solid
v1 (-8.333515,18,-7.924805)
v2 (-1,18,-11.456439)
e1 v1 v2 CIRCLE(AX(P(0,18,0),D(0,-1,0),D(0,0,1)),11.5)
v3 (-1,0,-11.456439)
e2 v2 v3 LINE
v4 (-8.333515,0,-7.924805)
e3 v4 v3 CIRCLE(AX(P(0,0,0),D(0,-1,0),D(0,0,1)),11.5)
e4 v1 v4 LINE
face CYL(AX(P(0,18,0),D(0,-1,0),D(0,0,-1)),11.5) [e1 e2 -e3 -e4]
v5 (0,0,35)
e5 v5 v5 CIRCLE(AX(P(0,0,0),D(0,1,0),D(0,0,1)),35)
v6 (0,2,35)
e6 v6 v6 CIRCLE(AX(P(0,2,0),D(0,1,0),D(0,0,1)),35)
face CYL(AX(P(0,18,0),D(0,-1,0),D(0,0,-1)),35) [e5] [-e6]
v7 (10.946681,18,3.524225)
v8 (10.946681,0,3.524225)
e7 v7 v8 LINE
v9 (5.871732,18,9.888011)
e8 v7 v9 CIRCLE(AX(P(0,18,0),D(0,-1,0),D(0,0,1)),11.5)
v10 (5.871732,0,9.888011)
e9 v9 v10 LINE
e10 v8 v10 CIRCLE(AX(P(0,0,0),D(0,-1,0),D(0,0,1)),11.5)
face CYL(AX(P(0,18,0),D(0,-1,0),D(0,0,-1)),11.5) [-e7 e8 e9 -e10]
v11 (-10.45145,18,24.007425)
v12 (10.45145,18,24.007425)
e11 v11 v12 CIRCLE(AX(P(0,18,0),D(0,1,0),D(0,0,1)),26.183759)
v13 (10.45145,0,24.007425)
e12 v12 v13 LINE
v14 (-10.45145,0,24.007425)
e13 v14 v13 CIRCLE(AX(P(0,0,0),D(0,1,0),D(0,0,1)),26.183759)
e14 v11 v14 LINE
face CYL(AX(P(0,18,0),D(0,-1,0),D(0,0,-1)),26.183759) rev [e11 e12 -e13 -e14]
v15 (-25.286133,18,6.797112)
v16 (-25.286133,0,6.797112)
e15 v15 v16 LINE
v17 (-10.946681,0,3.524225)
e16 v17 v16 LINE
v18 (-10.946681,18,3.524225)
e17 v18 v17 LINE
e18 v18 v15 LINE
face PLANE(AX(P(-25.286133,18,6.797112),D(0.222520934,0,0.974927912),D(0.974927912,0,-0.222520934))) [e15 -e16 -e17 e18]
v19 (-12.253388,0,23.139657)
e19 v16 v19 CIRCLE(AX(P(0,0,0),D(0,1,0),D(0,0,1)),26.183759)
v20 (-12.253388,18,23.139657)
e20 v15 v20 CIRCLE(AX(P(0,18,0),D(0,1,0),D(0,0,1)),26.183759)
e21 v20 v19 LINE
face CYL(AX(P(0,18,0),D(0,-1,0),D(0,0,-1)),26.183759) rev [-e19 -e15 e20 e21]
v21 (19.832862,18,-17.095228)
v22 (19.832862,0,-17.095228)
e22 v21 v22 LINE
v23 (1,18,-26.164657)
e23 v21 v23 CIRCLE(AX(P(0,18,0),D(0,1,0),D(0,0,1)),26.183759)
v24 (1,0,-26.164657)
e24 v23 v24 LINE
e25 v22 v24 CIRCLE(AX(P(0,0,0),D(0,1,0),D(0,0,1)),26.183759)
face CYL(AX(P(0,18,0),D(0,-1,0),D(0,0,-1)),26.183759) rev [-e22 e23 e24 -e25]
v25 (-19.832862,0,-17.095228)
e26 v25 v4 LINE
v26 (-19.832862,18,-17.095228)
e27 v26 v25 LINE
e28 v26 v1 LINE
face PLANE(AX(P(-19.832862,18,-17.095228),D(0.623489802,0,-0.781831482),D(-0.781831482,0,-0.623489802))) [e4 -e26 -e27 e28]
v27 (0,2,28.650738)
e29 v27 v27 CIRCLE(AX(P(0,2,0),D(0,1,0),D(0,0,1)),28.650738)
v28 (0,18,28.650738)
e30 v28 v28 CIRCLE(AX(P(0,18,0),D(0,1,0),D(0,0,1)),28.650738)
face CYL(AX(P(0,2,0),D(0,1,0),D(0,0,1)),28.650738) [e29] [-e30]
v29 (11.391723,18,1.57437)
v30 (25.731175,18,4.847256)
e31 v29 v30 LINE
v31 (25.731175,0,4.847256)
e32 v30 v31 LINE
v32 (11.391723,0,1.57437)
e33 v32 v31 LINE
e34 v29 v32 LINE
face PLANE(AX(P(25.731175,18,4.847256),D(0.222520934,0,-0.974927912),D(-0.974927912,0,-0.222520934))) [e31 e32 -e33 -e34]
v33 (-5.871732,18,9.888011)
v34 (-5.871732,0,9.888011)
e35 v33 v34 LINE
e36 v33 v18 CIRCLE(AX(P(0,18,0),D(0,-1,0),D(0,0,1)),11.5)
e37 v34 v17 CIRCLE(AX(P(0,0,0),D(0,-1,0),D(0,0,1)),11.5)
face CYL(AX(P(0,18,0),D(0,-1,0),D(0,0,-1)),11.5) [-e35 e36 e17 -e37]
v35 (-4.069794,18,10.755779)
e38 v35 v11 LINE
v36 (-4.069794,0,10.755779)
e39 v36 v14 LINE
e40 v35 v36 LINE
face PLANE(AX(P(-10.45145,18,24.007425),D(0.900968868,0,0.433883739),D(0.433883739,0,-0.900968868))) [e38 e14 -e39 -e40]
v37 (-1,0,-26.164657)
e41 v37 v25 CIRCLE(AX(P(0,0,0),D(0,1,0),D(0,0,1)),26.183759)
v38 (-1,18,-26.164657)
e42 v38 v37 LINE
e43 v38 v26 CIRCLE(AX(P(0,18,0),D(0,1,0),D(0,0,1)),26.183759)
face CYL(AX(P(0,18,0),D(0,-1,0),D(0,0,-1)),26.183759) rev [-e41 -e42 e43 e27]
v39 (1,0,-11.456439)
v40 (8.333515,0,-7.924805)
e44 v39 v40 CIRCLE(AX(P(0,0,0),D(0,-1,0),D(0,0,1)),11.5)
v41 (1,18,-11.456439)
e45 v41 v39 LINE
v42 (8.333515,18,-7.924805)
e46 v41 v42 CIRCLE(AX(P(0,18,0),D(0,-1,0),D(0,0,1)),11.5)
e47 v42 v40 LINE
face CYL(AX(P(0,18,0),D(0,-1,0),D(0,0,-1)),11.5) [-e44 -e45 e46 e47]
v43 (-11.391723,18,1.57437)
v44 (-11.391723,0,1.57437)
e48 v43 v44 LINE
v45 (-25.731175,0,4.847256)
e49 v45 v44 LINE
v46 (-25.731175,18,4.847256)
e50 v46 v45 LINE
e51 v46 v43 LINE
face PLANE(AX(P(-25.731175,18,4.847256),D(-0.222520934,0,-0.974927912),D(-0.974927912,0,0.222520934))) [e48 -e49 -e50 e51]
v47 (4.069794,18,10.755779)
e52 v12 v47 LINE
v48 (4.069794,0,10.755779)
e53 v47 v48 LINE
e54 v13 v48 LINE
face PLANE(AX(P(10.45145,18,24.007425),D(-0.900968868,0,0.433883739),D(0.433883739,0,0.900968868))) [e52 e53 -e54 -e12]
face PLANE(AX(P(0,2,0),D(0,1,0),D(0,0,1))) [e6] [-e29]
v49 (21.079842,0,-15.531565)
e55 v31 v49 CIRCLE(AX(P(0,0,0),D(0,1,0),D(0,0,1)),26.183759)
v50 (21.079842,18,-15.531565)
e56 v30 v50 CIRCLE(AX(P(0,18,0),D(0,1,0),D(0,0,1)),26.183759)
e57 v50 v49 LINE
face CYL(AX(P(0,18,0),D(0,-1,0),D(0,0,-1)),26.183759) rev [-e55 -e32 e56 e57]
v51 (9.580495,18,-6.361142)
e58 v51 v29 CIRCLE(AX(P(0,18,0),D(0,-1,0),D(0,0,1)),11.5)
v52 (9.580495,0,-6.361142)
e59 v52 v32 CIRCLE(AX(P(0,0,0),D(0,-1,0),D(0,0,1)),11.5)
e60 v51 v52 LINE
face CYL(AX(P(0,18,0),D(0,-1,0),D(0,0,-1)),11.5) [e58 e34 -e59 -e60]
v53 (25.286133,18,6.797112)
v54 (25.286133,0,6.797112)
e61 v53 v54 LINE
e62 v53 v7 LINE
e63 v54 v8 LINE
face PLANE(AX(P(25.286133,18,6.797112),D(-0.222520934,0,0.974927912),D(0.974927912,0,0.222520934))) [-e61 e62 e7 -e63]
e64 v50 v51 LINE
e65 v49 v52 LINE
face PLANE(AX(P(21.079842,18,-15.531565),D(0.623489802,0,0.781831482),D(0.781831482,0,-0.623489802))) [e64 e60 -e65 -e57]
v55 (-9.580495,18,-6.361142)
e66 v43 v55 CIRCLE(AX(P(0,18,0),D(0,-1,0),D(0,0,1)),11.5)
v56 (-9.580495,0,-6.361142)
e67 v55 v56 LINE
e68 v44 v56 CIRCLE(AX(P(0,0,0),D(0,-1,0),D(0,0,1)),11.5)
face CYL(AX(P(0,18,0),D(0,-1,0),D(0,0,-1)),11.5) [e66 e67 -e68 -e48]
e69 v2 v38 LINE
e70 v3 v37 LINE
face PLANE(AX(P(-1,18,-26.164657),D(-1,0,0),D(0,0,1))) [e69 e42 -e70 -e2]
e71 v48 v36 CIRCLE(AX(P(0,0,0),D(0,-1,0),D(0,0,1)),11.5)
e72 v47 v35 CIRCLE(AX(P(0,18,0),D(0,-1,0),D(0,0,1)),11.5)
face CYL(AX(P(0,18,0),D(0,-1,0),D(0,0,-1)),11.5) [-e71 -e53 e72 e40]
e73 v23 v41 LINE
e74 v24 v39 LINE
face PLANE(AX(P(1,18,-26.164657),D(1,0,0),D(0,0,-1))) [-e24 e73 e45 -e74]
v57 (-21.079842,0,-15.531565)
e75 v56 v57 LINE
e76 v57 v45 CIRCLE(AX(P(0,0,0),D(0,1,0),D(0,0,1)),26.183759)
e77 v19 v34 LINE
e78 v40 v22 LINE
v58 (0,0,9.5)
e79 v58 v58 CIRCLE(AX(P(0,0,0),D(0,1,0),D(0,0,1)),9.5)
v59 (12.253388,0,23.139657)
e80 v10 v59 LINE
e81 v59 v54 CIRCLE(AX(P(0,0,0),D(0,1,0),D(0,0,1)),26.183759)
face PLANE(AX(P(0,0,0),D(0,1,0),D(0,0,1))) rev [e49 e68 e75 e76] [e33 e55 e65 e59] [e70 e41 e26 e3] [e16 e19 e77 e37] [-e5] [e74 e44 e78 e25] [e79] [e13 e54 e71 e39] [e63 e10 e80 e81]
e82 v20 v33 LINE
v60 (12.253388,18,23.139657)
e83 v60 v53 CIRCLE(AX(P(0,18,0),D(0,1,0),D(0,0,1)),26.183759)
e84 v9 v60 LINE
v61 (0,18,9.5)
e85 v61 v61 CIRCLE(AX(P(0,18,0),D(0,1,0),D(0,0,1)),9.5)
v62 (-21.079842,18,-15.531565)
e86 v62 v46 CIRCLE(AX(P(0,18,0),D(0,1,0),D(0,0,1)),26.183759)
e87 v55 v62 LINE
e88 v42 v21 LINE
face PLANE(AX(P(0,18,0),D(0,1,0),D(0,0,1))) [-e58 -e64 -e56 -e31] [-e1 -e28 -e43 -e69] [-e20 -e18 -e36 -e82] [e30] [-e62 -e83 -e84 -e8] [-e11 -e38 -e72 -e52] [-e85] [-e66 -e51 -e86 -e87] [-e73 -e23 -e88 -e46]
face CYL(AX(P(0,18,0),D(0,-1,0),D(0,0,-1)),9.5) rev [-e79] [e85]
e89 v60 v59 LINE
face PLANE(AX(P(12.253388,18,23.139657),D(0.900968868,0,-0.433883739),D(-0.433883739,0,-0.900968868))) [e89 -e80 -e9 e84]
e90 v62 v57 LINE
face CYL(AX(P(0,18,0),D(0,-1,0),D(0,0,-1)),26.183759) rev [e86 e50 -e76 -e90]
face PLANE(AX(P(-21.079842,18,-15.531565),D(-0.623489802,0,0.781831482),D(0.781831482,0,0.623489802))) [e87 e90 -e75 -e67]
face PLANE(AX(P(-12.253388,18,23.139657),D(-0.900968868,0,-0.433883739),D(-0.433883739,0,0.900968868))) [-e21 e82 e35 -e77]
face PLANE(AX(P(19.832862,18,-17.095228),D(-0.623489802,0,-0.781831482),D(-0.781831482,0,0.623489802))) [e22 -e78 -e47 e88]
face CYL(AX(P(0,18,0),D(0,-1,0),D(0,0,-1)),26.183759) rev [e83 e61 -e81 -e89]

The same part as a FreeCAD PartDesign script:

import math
import FreeCAD as App
import Part
import Sketcher

doc = App.newDocument("Part")
body = doc.addObject("PartDesign::Body", "Body")

sketch1 = body.newObject("Sketcher::SketchObject", "Sketch")
sketch1.AttachmentSupport = (doc.getObject("XZ_Plane"), [""])
sketch1.MapMode = "FlatFace"
sketch1.addGeometry(Part.Circle(App.Vector(0, 0, 0), App.Vector(0, 0, 1), 35), False)
sketch1.addGeometry(Part.LineSegment(App.Vector(-6, 10, 0), App.Vector(-12, 23, 0)), False)
sketch1.addGeometry(Part.ArcOfCircle(Part.Circle(App.Vector(0, 0, 0), App.Vector(0, 0, 1), 26), math.radians(118), math.radians(165)), False)
sketch1.addGeometry(Part.LineSegment(App.Vector(-25, 7, 0), App.Vector(-11, 4, 0)), False)
sketch1.addGeometry(Part.ArcOfCircle(Part.Circle(App.Vector(0, 0, 0), App.Vector(0, 0, 1), 12), math.radians(121), math.radians(162)), False)
sketch1.addGeometry(Part.LineSegment(App.Vector(4, 11, 0), App.Vector(10, 24, 0)), False)
sketch1.addGeometry(Part.ArcOfCircle(Part.Circle(App.Vector(0, 0, 0), App.Vector(0, 0, 1), 26), math.radians(66), math.radians(114)), False)
sketch1.addGeometry(Part.LineSegment(App.Vector(-10, 24, 0), App.Vector(-4, 11, 0)), False)
sketch1.addGeometry(Part.ArcOfCircle(Part.Circle(App.Vector(0, 0, 0), App.Vector(0, 0, 1), 11), math.radians(69), math.radians(111)), False)
sketch1.addGeometry(Part.LineSegment(App.Vector(11, 4, 0), App.Vector(25, 7, 0)), False)
sketch1.addGeometry(Part.ArcOfCircle(Part.Circle(App.Vector(0, 0, 0), App.Vector(0, 0, 1), 26), math.radians(15), math.radians(62)), False)
sketch1.addGeometry(Part.LineSegment(App.Vector(12, 23, 0), App.Vector(6, 10, 0)), False)
sketch1.addGeometry(Part.ArcOfCircle(Part.Circle(App.Vector(0, 0, 0), App.Vector(0, 0, 1), 12), math.radians(18), math.radians(59)), False)
sketch1.addGeometry(Part.LineSegment(App.Vector(-11, 2, 0), App.Vector(-26, 5, 0)), False)
sketch1.addGeometry(Part.ArcOfCircle(Part.Circle(App.Vector(0, 0, 0), App.Vector(0, 0, 1), 26), math.radians(169), math.radians(216)), False)
sketch1.addGeometry(Part.LineSegment(App.Vector(-21, -16, 0), App.Vector(-10, -6, 0)), False)
sketch1.addGeometry(Part.ArcOfCircle(Part.Circle(App.Vector(0, 0, 0), App.Vector(0, 0, 1), 12), math.radians(172), math.radians(214)), False)
sketch1.addGeometry(Part.ArcOfCircle(Part.Circle(App.Vector(0, 0, 0), App.Vector(0, 0, 1), 26), math.radians(-139), math.radians(-92)), False)
sketch1.addGeometry(Part.LineSegment(App.Vector(-1, -26, 0), App.Vector(-1, -11, 0)), False)
sketch1.addGeometry(Part.ArcOfCircle(Part.Circle(App.Vector(0, 0, 0), App.Vector(0, 0, 1), 11), math.radians(-136), math.radians(-95)), False)
sketch1.addGeometry(Part.LineSegment(App.Vector(-8, -8, 0), App.Vector(-20, -17, 0)), False)
sketch1.addGeometry(Part.Circle(App.Vector(0, 0, 0), App.Vector(0, 0, 1), 10), False)
sketch1.addGeometry(Part.LineSegment(App.Vector(10, -6, 0), App.Vector(21, -16, 0)), False)
sketch1.addGeometry(Part.ArcOfCircle(Part.Circle(App.Vector(0, 0, 0), App.Vector(0, 0, 1), 26), math.radians(-36), math.radians(11)), False)
sketch1.addGeometry(Part.LineSegment(App.Vector(26, 5, 0), App.Vector(11, 2, 0)), False)
sketch1.addGeometry(Part.ArcOfCircle(Part.Circle(App.Vector(0, 0, 0), App.Vector(0, 0, 1), 12), math.radians(-34), math.radians(8)), False)
sketch1.addGeometry(Part.ArcOfCircle(Part.Circle(App.Vector(0, 0, 0), App.Vector(0, 0, 1), 26), math.radians(-88), math.radians(-41)), False)
sketch1.addGeometry(Part.LineSegment(App.Vector(20, -17, 0), App.Vector(8, -8, 0)), False)
sketch1.addGeometry(Part.ArcOfCircle(Part.Circle(App.Vector(0, 0, 0), App.Vector(0, 0, 1), 11), math.radians(-85), math.radians(-44)), False)
sketch1.addGeometry(Part.LineSegment(App.Vector(1, -11, 0), App.Vector(1, -26, 0)), False)
sketch1.addConstraint(Sketcher.Constraint("Coincident", 1, 2, 2, 1))
sketch1.addConstraint(Sketcher.Constraint("Coincident", 2, 2, 3, 1))
sketch1.addConstraint(Sketcher.Constraint("Coincident", 3, 2, 4, 2))
sketch1.addConstraint(Sketcher.Constraint("Coincident", 4, 1, 1, 1))
sketch1.addConstraint(Sketcher.Constraint("Coincident", 5, 2, 6, 1))
sketch1.addConstraint(Sketcher.Constraint("Coincident", 6, 2, 7, 1))
sketch1.addConstraint(Sketcher.Constraint("Coincident", 7, 2, 8, 2))
sketch1.addConstraint(Sketcher.Constraint("Coincident", 8, 1, 5, 1))
sketch1.addConstraint(Sketcher.Constraint("Coincident", 9, 2, 10, 1))
sketch1.addConstraint(Sketcher.Constraint("Coincident", 10, 2, 11, 1))
sketch1.addConstraint(Sketcher.Constraint("Coincident", 11, 2, 12, 2))
sketch1.addConstraint(Sketcher.Constraint("Coincident", 12, 1, 9, 1))
sketch1.addConstraint(Sketcher.Constraint("Coincident", 13, 2, 14, 1))
sketch1.addConstraint(Sketcher.Constraint("Coincident", 14, 2, 15, 1))
sketch1.addConstraint(Sketcher.Constraint("Coincident", 15, 2, 16, 2))
sketch1.addConstraint(Sketcher.Constraint("Coincident", 16, 1, 13, 1))
sketch1.addConstraint(Sketcher.Constraint("Coincident", 17, 2, 18, 1))
sketch1.addConstraint(Sketcher.Constraint("Coincident", 18, 2, 19, 2))
sketch1.addConstraint(Sketcher.Constraint("Coincident", 19, 1, 20, 1))
sketch1.addConstraint(Sketcher.Constraint("Coincident", 20, 2, 17, 1))
sketch1.addConstraint(Sketcher.Constraint("Coincident", 22, 2, 23, 1))
sketch1.addConstraint(Sketcher.Constraint("Coincident", 23, 2, 24, 1))
sketch1.addConstraint(Sketcher.Constraint("Coincident", 24, 2, 25, 2))
sketch1.addConstraint(Sketcher.Constraint("Coincident", 25, 1, 22, 1))
sketch1.addConstraint(Sketcher.Constraint("Coincident", 26, 2, 27, 1))
sketch1.addConstraint(Sketcher.Constraint("Coincident", 27, 2, 28, 2))
sketch1.addConstraint(Sketcher.Constraint("Coincident", 28, 1, 29, 1))
sketch1.addConstraint(Sketcher.Constraint("Coincident", 29, 2, 26, 1))
sketch1.addConstraint(Sketcher.Constraint("Vertical", 18))
sketch1.addConstraint(Sketcher.Constraint("Vertical", 29))
sketch1.addConstraint(Sketcher.Constraint("Coincident", 0, 3, -1, 1))
sketch1.addConstraint(Sketcher.Constraint("Coincident", 2, 3, -1, 1))
sketch1.addConstraint(Sketcher.Constraint("Coincident", 4, 3, -1, 1))
sketch1.addConstraint(Sketcher.Constraint("Coincident", 6, 3, -1, 1))
sketch1.addConstraint(Sketcher.Constraint("Coincident", 8, 3, -1, 1))
sketch1.addConstraint(Sketcher.Constraint("Coincident", 10, 3, -1, 1))
sketch1.addConstraint(Sketcher.Constraint("Coincident", 12, 3, -1, 1))
sketch1.addConstraint(Sketcher.Constraint("Coincident", 14, 3, -1, 1))
sketch1.addConstraint(Sketcher.Constraint("Coincident", 16, 3, -1, 1))
sketch1.addConstraint(Sketcher.Constraint("Coincident", 17, 3, -1, 1))
sketch1.addConstraint(Sketcher.Constraint("Coincident", 19, 3, -1, 1))
sketch1.addConstraint(Sketcher.Constraint("Coincident", 21, 3, -1, 1))
sketch1.addConstraint(Sketcher.Constraint("Coincident", 23, 3, -1, 1))
sketch1.addConstraint(Sketcher.Constraint("Coincident", 25, 3, -1, 1))
sketch1.addConstraint(Sketcher.Constraint("Coincident", 26, 3, -1, 1))
sketch1.addConstraint(Sketcher.Constraint("Coincident", 28, 3, -1, 1))
sketch1.addConstraint(Sketcher.Constraint("Equal", 2, 6))
sketch1.addConstraint(Sketcher.Constraint("Equal", 4, 8))
sketch1.addConstraint(Sketcher.Constraint("Equal", 6, 10))
sketch1.addConstraint(Sketcher.Constraint("Equal", 8, 12))
sketch1.addConstraint(Sketcher.Constraint("Equal", 10, 14))
sketch1.addConstraint(Sketcher.Constraint("Equal", 12, 16))
sketch1.addConstraint(Sketcher.Constraint("Equal", 14, 17))
sketch1.addConstraint(Sketcher.Constraint("Equal", 16, 19))
sketch1.addConstraint(Sketcher.Constraint("Equal", 17, 23))
sketch1.addConstraint(Sketcher.Constraint("Equal", 19, 25))
sketch1.addConstraint(Sketcher.Constraint("Equal", 23, 26))
sketch1.addConstraint(Sketcher.Constraint("Equal", 25, 28))
sketch1.addConstraint(Sketcher.Constraint("Parallel", 1, 7))
sketch1.addConstraint(Sketcher.Constraint("Parallel", 5, 11))
sketch1.addConstraint(Sketcher.Constraint("Parallel", 3, 13))
sketch1.addConstraint(Sketcher.Constraint("Parallel", 15, 20))
sketch1.addConstraint(Sketcher.Constraint("Parallel", 9, 24))
sketch1.addConstraint(Sketcher.Constraint("Parallel", 22, 27))
sketch1.addConstraint(Sketcher.Constraint("Horizontal", 5, 2, 6, 2))
sketch1.addConstraint(Sketcher.Constraint("Horizontal", 7, 2, 8, 1))
sketch1.addConstraint(Sketcher.Constraint("Horizontal", 2, 2, 9, 2))
sketch1.addConstraint(Sketcher.Constraint("Horizontal", 1, 2, 10, 2))
sketch1.addConstraint(Sketcher.Constraint("Horizontal", 3, 2, 12, 1))
sketch1.addConstraint(Sketcher.Constraint("Horizontal", 14, 2, 22, 2))
sketch1.addConstraint(Sketcher.Constraint("Horizontal", 13, 2, 23, 2))
sketch1.addConstraint(Sketcher.Constraint("Horizontal", 15, 2, 25, 1))
sketch1.addConstraint(Sketcher.Constraint("Horizontal", 20, 2, 26, 2))
sketch1.addConstraint(Sketcher.Constraint("Horizontal", 18, 2, 28, 1))
sketch1.addConstraint(Sketcher.Constraint("Equal", 1, 3))
sketch1.addConstraint(Sketcher.Constraint("Equal", 3, 5))
sketch1.addConstraint(Sketcher.Constraint("Equal", 11, 13))
sketch1.addConstraint(Sketcher.Constraint("Equal", 13, 15))
sketch1.addConstraint(Sketcher.Constraint("Equal", 15, 20))
sketch1.addConstraint(Sketcher.Constraint("Diameter", 0, 70.0))
sketch1.addConstraint(Sketcher.Constraint("Diameter", 21, 19.0))
sketch1.addConstraint(Sketcher.Constraint("Radius", 4, 11.5))
sketch1.addConstraint(Sketcher.Constraint("DistanceX", 17, 2, -1, 1, 1.0))
sketch1.addConstraint(Sketcher.Constraint("Radius", 2, 26.183759))
sketch1.addConstraint(Sketcher.Constraint("DistanceY", 3, 2, 6, 2, 20.483199))
sketch1.addConstraint(Sketcher.Constraint("DistanceX", 6, 2, 5, 2, 20.9029))
sketch1.addConstraint(Sketcher.Constraint("DistanceY", 13, 2, 1, 2, 18.292401))
sketch1.addConstraint(Sketcher.Constraint("DistanceY", 15, 2, -1, 1, 6.361142))
pad1 = body.newObject("PartDesign::Pad", "Pad")
pad1.Profile = sketch1
pad1.Length = 18
pad1.Reversed = True

sketch2 = body.newObject("Sketcher::SketchObject", "Sketch001")
sketch2.AttachmentSupport = (doc.getObject("XZ_Plane"), [""])
sketch2.MapMode = "FlatFace"
sketch2.AttachmentOffset = App.Placement(App.Vector(0, 0, -18), App.Rotation())
sketch2.addGeometry(Part.Circle(App.Vector(0, 0, 0), App.Vector(0, 0, 1), 41), False)
sketch2.addGeometry(Part.Circle(App.Vector(0, 0, 0), App.Vector(0, 0, 1), 29), False)
sketch2.addConstraint(Sketcher.Constraint("Coincident", 0, 3, -1, 1))
sketch2.addConstraint(Sketcher.Constraint("Coincident", 1, 3, -1, 1))
sketch2.addConstraint(Sketcher.Constraint("Diameter", 0, 81.712768))
sketch2.addConstraint(Sketcher.Constraint("Diameter", 1, 57.301476))
pocket1 = body.newObject("PartDesign::Pocket", "Pocket")
pocket1.Profile = sketch2
pocket1.Length = 16
pocket1.Reversed = True

doc.recompute()
